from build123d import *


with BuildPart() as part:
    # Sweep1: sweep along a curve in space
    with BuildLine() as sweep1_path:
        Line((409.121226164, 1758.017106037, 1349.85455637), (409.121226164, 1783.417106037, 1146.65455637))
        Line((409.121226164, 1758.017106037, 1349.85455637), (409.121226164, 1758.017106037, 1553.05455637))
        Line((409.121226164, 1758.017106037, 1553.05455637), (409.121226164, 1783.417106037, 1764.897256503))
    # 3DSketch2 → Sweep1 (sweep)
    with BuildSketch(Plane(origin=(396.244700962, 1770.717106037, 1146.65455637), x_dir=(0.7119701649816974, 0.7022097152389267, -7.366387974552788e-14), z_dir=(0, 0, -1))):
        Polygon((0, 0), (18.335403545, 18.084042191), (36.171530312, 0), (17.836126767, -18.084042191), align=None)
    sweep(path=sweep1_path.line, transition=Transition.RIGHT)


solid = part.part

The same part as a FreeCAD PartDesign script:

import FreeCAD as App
import Part
import Sketcher

V = App.Vector
Q = App.Units.Quantity


def add_polygon(sketch, points):
    """Adds a closed chain of lines whose ends are joined by coincident constraints."""
    first, n = sketch.GeometryCount, len(points)
    for a, b in zip(points, points[1:] + points[:1]):
        sketch.addGeometry(Part.LineSegment(App.Vector(*a, 0), App.Vector(*b, 0)), False)
    for i in range(n):
        sketch.addConstraint(Sketcher.Constraint("Coincident", first + i, 2, first + (i + 1) % n, 1))

doc = App.newDocument("Part")
params = doc.addObject("Spreadsheet::Sheet", "Params")
for row, (alias, value) in enumerate([
    ("sketch1_height", "1 in"),
    ("sketch2_height", "8 in"),
    ("sketch2_width", "1 in"),
    ("sketch2_length", "8.4 in"),
], start=1):
    params.set(f"A{row}", alias)
    params.set(f"B{row}", "=" + value)
    params.setAlias(f"B{row}", alias)

body = doc.addObject("PartDesign::Body", "Body")

sketch1 = body.newObject("Sketcher::SketchObject", "Sketch")
sketch1.AttachmentSupport = (doc.getObject("XY_Plane"), [""])
sketch1.MapMode = "FlatFace"
sketch1.AttachmentOffset = App.Placement(V(0, 0, 1146.654556), App.Rotation())
add_polygon(sketch1, [(422, 1771), (396, 1771), (396, 1796), (422, 1796)])
sketch1.addConstraint([
    Sketcher.Constraint("Horizontal", 0),
    Sketcher.Constraint("Vertical", 1),
    Sketcher.Constraint("Horizontal", 2),
    Sketcher.Constraint("Vertical", 3),
    Sketcher.Constraint("DistanceY", 1, 1, 1, 2, Q("1 in")),
    Sketcher.Constraint("DistanceX", 0, 2, 0, 1, 25.75305),
    Sketcher.Constraint("DistanceX", -1, 1, 0, 2, 396.244701),
    Sketcher.Constraint("DistanceY", -1, 1, 0, 2, 1770.717106),
])
sketch1.setExpression("Constraints[8]", "Params.sketch1_height")

sketch2 = body.newObject("Sketcher::SketchObject", "Sketch001")
sketch2.AttachmentSupport = (doc.getObject("YZ_Plane"), [""])
sketch2.MapMode = "FlatFace"
sketch2.AttachmentOffset = App.Placement(V(0, 0, 409.121226), App.Rotation())
sketch2.addGeometry([
    Part.LineSegment(V(1783, 1765, 0), V(1758, 1553, 0)),
    Part.LineSegment(V(1758, 1553, 0), V(1758, 1350, 0)),
    Part.LineSegment(V(1758, 1350, 0), V(1783, 1147, 0)),
], False)
sketch2.addConstraint([
    Sketcher.Constraint("Coincident", 0, 2, 1, 1),
    Sketcher.Constraint("Coincident", 1, 2, 2, 1),
    Sketcher.Constraint("Vertical", 1),
    Sketcher.Constraint("Vertical", 0, 1, 2, 2),
    Sketcher.Constraint("DistanceY", 1, 2, 1, 1, Q("8 in")),
    Sketcher.Constraint("DistanceX", 0, 2, 0, 1, Q("1 in")),
    Sketcher.Constraint("DistanceY", 2, 2, 1, 2, Q("8 in")),
    Sketcher.Constraint("Distance", 0, Q("8.4 in")),
    Sketcher.Constraint("DistanceX", -1, 1, 0, 1, 1783.417106),
    Sketcher.Constraint("DistanceY", -1, 1, 0, 1, 1764.897257),
])
sketch2.setExpression("Constraints[4]", "Params.sketch2_height")
sketch2.setExpression("Constraints[5]", "Params.sketch2_width")
sketch2.setExpression("Constraints[7]", "Params.sketch2_length")
doc.recompute()

additivepipe = body.newObject("PartDesign::AdditivePipe", "AdditivePipe")
additivepipe.Profile = sketch1
additivepipe.Spine = (sketch2, ["Edge1", "Edge2", "Edge3"])
additivepipe.Transition = "Right corner"

doc.recompute()
